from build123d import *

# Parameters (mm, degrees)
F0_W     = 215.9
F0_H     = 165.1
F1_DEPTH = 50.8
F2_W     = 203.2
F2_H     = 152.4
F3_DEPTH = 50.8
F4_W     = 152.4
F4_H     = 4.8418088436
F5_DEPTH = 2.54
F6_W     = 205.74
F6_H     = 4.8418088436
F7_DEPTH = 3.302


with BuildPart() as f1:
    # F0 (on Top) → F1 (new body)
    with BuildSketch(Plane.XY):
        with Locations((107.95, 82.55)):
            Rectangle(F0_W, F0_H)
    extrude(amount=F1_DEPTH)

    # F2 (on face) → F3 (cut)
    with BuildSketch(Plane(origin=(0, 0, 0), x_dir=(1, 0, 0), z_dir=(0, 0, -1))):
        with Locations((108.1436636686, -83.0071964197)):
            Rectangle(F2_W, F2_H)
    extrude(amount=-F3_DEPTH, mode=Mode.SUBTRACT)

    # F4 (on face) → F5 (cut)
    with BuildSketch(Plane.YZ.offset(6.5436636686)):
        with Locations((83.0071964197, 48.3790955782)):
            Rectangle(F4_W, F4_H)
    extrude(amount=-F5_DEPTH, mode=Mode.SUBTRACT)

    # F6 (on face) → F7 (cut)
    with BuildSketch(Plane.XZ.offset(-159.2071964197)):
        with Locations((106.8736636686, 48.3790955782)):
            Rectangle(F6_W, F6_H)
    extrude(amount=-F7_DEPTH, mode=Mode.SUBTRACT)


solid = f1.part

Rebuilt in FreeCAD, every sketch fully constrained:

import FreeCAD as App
import Part
import Sketcher

V = App.Vector
Q = App.Units.Quantity


def add_polygon(sketch, points):
    """Adds a closed chain of lines whose ends are joined by coincident constraints."""
    first, n = sketch.GeometryCount, len(points)
    for a, b in zip(points, points[1:] + points[:1]):
        sketch.addGeometry(Part.LineSegment(App.Vector(*a, 0), App.Vector(*b, 0)), False)
    for i in range(n):
        sketch.addConstraint(Sketcher.Constraint("Coincident", first + i, 2, first + (i + 1) % n, 1))

doc = App.newDocument("Part")
body = doc.addObject("PartDesign::Body", "Body")

# Sketch on XY plane
sketch1 = doc.addObject("Sketcher::SketchObject", "Sketch")
body.addObject(sketch1)
sketch1.AttachmentSupport = (doc.XY_Plane, [""])
sketch1.MapMode = "FlatFace"
add_polygon(sketch1, [(0, 165), (0, 0), (216, 0), (216, 165)])  # lines 0-3
sketch1.addConstraint([
    Sketcher.Constraint("Vertical", 0),
    Sketcher.Constraint("Horizontal", 1),
    Sketcher.Constraint("Vertical", 2),
    Sketcher.Constraint("Horizontal", 3),
    Sketcher.Constraint("Coincident", 0, 2, -1, 1),
    Sketcher.Constraint("DistanceX", 1, 1, 1, 2, Q("8.5 in")),
    Sketcher.Constraint("DistanceY", 0, 2, 0, 1, Q("6.5 in")),
])
pad1 = doc.addObject("PartDesign::Pad", "Pad")
body.addObject(pad1)
pad1.Profile = sketch1
pad1.Length = Q("2 in")

# Sketch on XY plane
sketch2 = doc.addObject("Sketcher::SketchObject", "Sketch001")
body.addObject(sketch2)
sketch2.AttachmentSupport = (doc.XY_Plane, [""])
sketch2.MapMode = "FlatFace"
add_polygon(sketch2, [(7, 7), (7, 159), (210, 159), (210, 7)])  # lines 0-3
sketch2.addConstraint([
    Sketcher.Constraint("Vertical", 0),
    Sketcher.Constraint("Horizontal", 1),
    Sketcher.Constraint("Vertical", 2),
    Sketcher.Constraint("Horizontal", 3),
    Sketcher.Constraint("DistanceX", 1, 1, 1, 2, Q("8 in")),
    Sketcher.Constraint("DistanceY", 0, 1, 0, 2, Q("6 in")),
    Sketcher.Constraint("DistanceY", -1, 1, 0, 2, Q("6.2679999 in")),
    Sketcher.Constraint("DistanceX", -1, 1, 0, 2, Q("6.543664 mm")),
])
pocket1 = doc.addObject("PartDesign::Pocket", "Pocket")
body.addObject(pocket1)
pocket1.Profile = sketch2
pocket1.Length = Q("2 in")
pocket1.Reversed = True

# Sketch on YZ plane
sketch3 = doc.addObject("Sketcher::SketchObject", "Sketch002")
body.addObject(sketch3)
sketch3.AttachmentSupport = (doc.YZ_Plane, [""])
sketch3.MapMode = "FlatFace"
sketch3.AttachmentOffset = App.Placement(V(0, 0, 6.543664), App.Rotation())
add_polygon(sketch3, [(6.8, 50.8), (6.8, 46), (159.2, 46), (159.2, 50.8)])  # lines 0-3
sketch3.addConstraint([
    Sketcher.Constraint("Vertical", 0),
    Sketcher.Constraint("Horizontal", 1),
    Sketcher.Constraint("Vertical", 2),
    Sketcher.Constraint("Horizontal", 3),
    Sketcher.Constraint("DistanceX", 1, 1, 1, 2, Q("6 in")),
    Sketcher.Constraint("DistanceY", -1, 1, 2, 2, Q("2 in")),
    Sketcher.Constraint("DistanceX", -1, 1, 0, 2, Q("0.2679999 in")),
    Sketcher.Constraint("DistanceY", 0, 2, 0, 1, Q("4.841809 mm")),
])
pocket2 = doc.addObject("PartDesign::Pocket", "Pocket001")
body.addObject(pocket2)
pocket2.Profile = sketch3
pocket2.Length = Q("0.1 in")

# Sketch on XZ plane
sketch4 = doc.addObject("Sketcher::SketchObject", "Sketch003")
body.addObject(sketch4)
sketch4.AttachmentSupport = (doc.XZ_Plane, [""])
sketch4.MapMode = "FlatFace"
sketch4.AttachmentOffset = App.Placement(V(0, 0, -6.2679999 * 25.4), App.Rotation())
add_polygon(sketch4, [(4, 50.8), (4, 46), (209.7, 46), (209.7, 50.8)])  # lines 0-3
sketch4.addConstraint([
    Sketcher.Constraint("Vertical", 0),
    Sketcher.Constraint("Horizontal", 1),
    Sketcher.Constraint("Vertical", 2),
    Sketcher.Constraint("Horizontal", 3),
    Sketcher.Constraint("DistanceX", 1, 1, 1, 2, Q("8.1 in")),
    Sketcher.Constraint("DistanceY", -1, 1, 2, 2, Q("2 in")),
    Sketcher.Constraint("DistanceY", 0, 2, 0, 1, Q("4.841809 mm")),
    Sketcher.Constraint("DistanceX", -1, 1, 0, 2, Q("4.003664 mm")),
])
pocket3 = doc.addObject("PartDesign::Pocket", "Pocket002")
body.addObject(pocket3)
pocket3.Profile = sketch4
pocket3.Length = Q("0.13 in")

doc.recompute()
